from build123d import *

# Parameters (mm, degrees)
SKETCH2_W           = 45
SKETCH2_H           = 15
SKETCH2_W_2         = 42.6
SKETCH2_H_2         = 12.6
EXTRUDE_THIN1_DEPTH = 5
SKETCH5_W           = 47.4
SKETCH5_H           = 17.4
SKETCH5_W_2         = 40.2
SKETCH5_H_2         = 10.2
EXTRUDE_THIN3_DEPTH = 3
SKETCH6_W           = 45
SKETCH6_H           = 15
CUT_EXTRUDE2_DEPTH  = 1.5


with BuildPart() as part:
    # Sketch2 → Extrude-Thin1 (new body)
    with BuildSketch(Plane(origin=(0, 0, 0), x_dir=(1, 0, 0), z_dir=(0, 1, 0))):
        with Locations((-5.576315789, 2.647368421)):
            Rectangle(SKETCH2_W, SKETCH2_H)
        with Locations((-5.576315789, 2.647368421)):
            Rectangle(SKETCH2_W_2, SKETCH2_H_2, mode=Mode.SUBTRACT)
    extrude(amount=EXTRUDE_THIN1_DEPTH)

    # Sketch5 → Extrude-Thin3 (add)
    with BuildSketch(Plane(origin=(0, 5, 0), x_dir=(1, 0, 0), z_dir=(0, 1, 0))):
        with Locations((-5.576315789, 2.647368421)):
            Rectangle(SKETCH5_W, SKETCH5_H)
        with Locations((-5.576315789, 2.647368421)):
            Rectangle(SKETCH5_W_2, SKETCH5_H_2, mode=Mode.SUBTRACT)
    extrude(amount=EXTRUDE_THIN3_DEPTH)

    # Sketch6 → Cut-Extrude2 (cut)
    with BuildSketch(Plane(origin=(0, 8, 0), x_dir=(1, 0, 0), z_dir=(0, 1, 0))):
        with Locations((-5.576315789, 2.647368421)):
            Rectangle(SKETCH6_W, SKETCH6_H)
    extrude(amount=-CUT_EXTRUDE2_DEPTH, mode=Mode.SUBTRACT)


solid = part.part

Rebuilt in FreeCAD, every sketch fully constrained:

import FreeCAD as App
import Part
import Sketcher
Q = App.Units.Quantity

doc = App.newDocument("Part")
params = doc.addObject("Spreadsheet::Sheet", "Params")
for row, (alias, value) in enumerate([
    ("sketch1_width", "45 mm"),
    ("sketch1_height", "15 mm"),
    ("sketch1_width2", "42.6 mm"),
    ("sketch1_height2", "12.6 mm"),
    ("pad1_length", "5 mm"),
    ("sketch2_width", "47.4 mm"),
    ("sketch2_width2", "40.2 mm"),
    ("sketch2_height", "17.4 mm"),
    ("sketch2_height2", "10.2 mm"),
    ("pad2_length", "3 mm"),
    ("sketch3_width", "45 mm"),
    ("sketch3_height", "15 mm"),
    ("pocket1_length", "1.5 mm"),
], start=1):
    params.set(f"A{row}", alias)
    params.set(f"B{row}", "=" + value)
    params.setAlias(f"B{row}", alias)

body = doc.addObject("PartDesign::Body", "Body")

sketch1 = body.newObject("Sketcher::SketchObject", "Sketch")
sketch1.AttachmentSupport = (doc.getObject("XZ_Plane"), [""])
sketch1.MapMode = "FlatFace"
sketch1.addGeometry(Part.LineSegment(App.Vector(-28, -10, 0), App.Vector(-28, 5, 0)), False)
sketch1.addGeometry(Part.LineSegment(App.Vector(-28, 5, 0), App.Vector(17, 5, 0)), False)
sketch1.addGeometry(Part.LineSegment(App.Vector(17, 5, 0), App.Vector(17, -10, 0)), False)
sketch1.addGeometry(Part.LineSegment(App.Vector(17, -10, 0), App.Vector(-28, -10, 0)), False)
sketch1.addGeometry(Part.LineSegment(App.Vector(16, 4, 0), App.Vector(-27, 4, 0)), False)
sketch1.addGeometry(Part.LineSegment(App.Vector(-27, 4, 0), App.Vector(-27, -9, 0)), False)
sketch1.addGeometry(Part.LineSegment(App.Vector(-27, -9, 0), App.Vector(16, -9, 0)), False)
sketch1.addGeometry(Part.LineSegment(App.Vector(16, -9, 0), App.Vector(16, 4, 0)), False)
sketch1.addConstraint(Sketcher.Constraint("Coincident", 0, 2, 1, 1))
sketch1.addConstraint(Sketcher.Constraint("Coincident", 1, 2, 2, 1))
sketch1.addConstraint(Sketcher.Constraint("Coincident", 2, 2, 3, 1))
sketch1.addConstraint(Sketcher.Constraint("Coincident", 3, 2, 0, 1))
sketch1.addConstraint(Sketcher.Constraint("Coincident", 4, 2, 5, 1))
sketch1.addConstraint(Sketcher.Constraint("Coincident", 5, 2, 6, 1))
sketch1.addConstraint(Sketcher.Constraint("Coincident", 6, 2, 7, 1))
sketch1.addConstraint(Sketcher.Constraint("Coincident", 7, 2, 4, 1))
sketch1.addConstraint(Sketcher.Constraint("Vertical", 0))
sketch1.addConstraint(Sketcher.Constraint("Horizontal", 1))
sketch1.addConstraint(Sketcher.Constraint("Vertical", 2))
sketch1.addConstraint(Sketcher.Constraint("Horizontal", 3))
sketch1.addConstraint(Sketcher.Constraint("Horizontal", 4))
sketch1.addConstraint(Sketcher.Constraint("Vertical", 5))
sketch1.addConstraint(Sketcher.Constraint("Horizontal", 6))
sketch1.addConstraint(Sketcher.Constraint("Vertical", 7))
sketch1.addConstraint(Sketcher.Constraint("DistanceX", 1, 1, 1, 2, Q("45 mm")))
sketch1.addConstraint(Sketcher.Constraint("DistanceY", 0, 1, 0, 2, Q("15 mm")))
sketch1.addConstraint(Sketcher.Constraint("DistanceX", 4, 2, 4, 1, Q("42.6 mm")))
sketch1.addConstraint(Sketcher.Constraint("DistanceY", 5, 2, 5, 1, Q("12.6 mm")))
sketch1.addConstraint(Sketcher.Constraint("DistanceX", 0, 2, 4, 2, Q("1.2 mm")))
sketch1.addConstraint(Sketcher.Constraint("DistanceY", 4, 2, 0, 2, Q("1.2 mm")))
sketch1.addConstraint(Sketcher.Constraint("DistanceY", -1, 1, 0, 2, Q("4.852632 mm")))
sketch1.addConstraint(Sketcher.Constraint("DistanceX", 0, 2, -1, 1, Q("28.076316 mm")))
sketch1.setExpression("Constraints[16]", "Params.sketch1_width")
sketch1.setExpression("Constraints[17]", "Params.sketch1_height")
sketch1.setExpression("Constraints[18]", "Params.sketch1_width2")
sketch1.setExpression("Constraints[19]", "Params.sketch1_height2")
pad1 = body.newObject("PartDesign::Pad", "Pad")
pad1.Profile = sketch1
pad1.setExpression("Length", "Params.pad1_length")
pad1.Reversed = True

sketch2 = body.newObject("Sketcher::SketchObject", "Sketch001")
sketch2.AttachmentSupport = (doc.getObject("XZ_Plane"), [""])
sketch2.MapMode = "FlatFace"
sketch2.AttachmentOffset = App.Placement(App.Vector(0, 0, -5), App.Rotation())
sketch2.addGeometry(Part.LineSegment(App.Vector(-29, -11, 0), App.Vector(-29, 6, 0)), False)
sketch2.addGeometry(Part.LineSegment(App.Vector(-29, 6, 0), App.Vector(18, 6, 0)), False)
sketch2.addGeometry(Part.LineSegment(App.Vector(18, 6, 0), App.Vector(18, -11, 0)), False)
sketch2.addGeometry(Part.LineSegment(App.Vector(18, -11, 0), App.Vector(-29, -11, 0)), False)
sketch2.addGeometry(Part.LineSegment(App.Vector(15, 2, 0), App.Vector(-26, 2, 0)), False)
sketch2.addGeometry(Part.LineSegment(App.Vector(-26, 2, 0), App.Vector(-26, -8, 0)), False)
sketch2.addGeometry(Part.LineSegment(App.Vector(-26, -8, 0), App.Vector(15, -8, 0)), False)
sketch2.addGeometry(Part.LineSegment(App.Vector(15, -8, 0), App.Vector(15, 2, 0)), False)
sketch2.addConstraint(Sketcher.Constraint("Coincident", 0, 2, 1, 1))
sketch2.addConstraint(Sketcher.Constraint("Coincident", 1, 2, 2, 1))
sketch2.addConstraint(Sketcher.Constraint("Coincident", 2, 2, 3, 1))
sketch2.addConstraint(Sketcher.Constraint("Coincident", 3, 2, 0, 1))
sketch2.addConstraint(Sketcher.Constraint("Coincident", 4, 2, 5, 1))
sketch2.addConstraint(Sketcher.Constraint("Coincident", 5, 2, 6, 1))
sketch2.addConstraint(Sketcher.Constraint("Coincident", 6, 2, 7, 1))
sketch2.addConstraint(Sketcher.Constraint("Coincident", 7, 2, 4, 1))
sketch2.addConstraint(Sketcher.Constraint("Vertical", 0))
sketch2.addConstraint(Sketcher.Constraint("Horizontal", 1))
sketch2.addConstraint(Sketcher.Constraint("Vertical", 2))
sketch2.addConstraint(Sketcher.Constraint("Horizontal", 3))
sketch2.addConstraint(Sketcher.Constraint("Horizontal", 4))
sketch2.addConstraint(Sketcher.Constraint("Vertical", 5))
sketch2.addConstraint(Sketcher.Constraint("Horizontal", 6))
sketch2.addConstraint(Sketcher.Constraint("Vertical", 7))
sketch2.addConstraint(Sketcher.Constraint("DistanceX", 1, 1, 1, 2, Q("47.4 mm")))
sketch2.addConstraint(Sketcher.Constraint("DistanceX", 4, 2, 4, 1, Q("40.2 mm")))
sketch2.addConstraint(Sketcher.Constraint("DistanceY", 0, 1, 0, 2, Q("17.4 mm")))
sketch2.addConstraint(Sketcher.Constraint("DistanceY", 5, 2, 5, 1, Q("10.2 mm")))
sketch2.addConstraint(Sketcher.Constraint("DistanceX", 0, 2, 4, 2, Q("3.6 mm")))
sketch2.addConstraint(Sketcher.Constraint("DistanceY", 4, 2, 0, 2, Q("3.6 mm")))
sketch2.addConstraint(Sketcher.Constraint("DistanceY", -1, 1, 0, 2, Q("6.052632 mm")))
sketch2.addConstraint(Sketcher.Constraint("DistanceX", 0, 2, -1, 1, Q("29.276316 mm")))
sketch2.setExpression("Constraints[16]", "Params.sketch2_width")
sketch2.setExpression("Constraints[17]", "Params.sketch2_width2")
sketch2.setExpression("Constraints[18]", "Params.sketch2_height")
sketch2.setExpression("Constraints[19]", "Params.sketch2_height2")
pad2 = body.newObject("PartDesign::Pad", "Pad001")
pad2.Profile = sketch2
pad2.setExpression("Length", "Params.pad2_length")
pad2.Reversed = True

sketch3 = body.newObject("Sketcher::SketchObject", "Sketch002")
sketch3.AttachmentSupport = (doc.getObject("XZ_Plane"), [""])
sketch3.MapMode = "FlatFace"
sketch3.AttachmentOffset = App.Placement(App.Vector(0, 0, -8), App.Rotation())
sketch3.addGeometry(Part.LineSegment(App.Vector(-28, -10, 0), App.Vector(-28, 5, 0)), False)
sketch3.addGeometry(Part.LineSegment(App.Vector(-28, 5, 0), App.Vector(17, 5, 0)), False)
sketch3.addGeometry(Part.LineSegment(App.Vector(17, 5, 0), App.Vector(17, -10, 0)), False)
sketch3.addGeometry(Part.LineSegment(App.Vector(17, -10, 0), App.Vector(-28, -10, 0)), False)
sketch3.addConstraint(Sketcher.Constraint("Coincident", 0, 2, 1, 1))
sketch3.addConstraint(Sketcher.Constraint("Coincident", 1, 2, 2, 1))
sketch3.addConstraint(Sketcher.Constraint("Coincident", 2, 2, 3, 1))
sketch3.addConstraint(Sketcher.Constraint("Coincident", 3, 2, 0, 1))
sketch3.addConstraint(Sketcher.Constraint("Vertical", 0))
sketch3.addConstraint(Sketcher.Constraint("Horizontal", 1))
sketch3.addConstraint(Sketcher.Constraint("Vertical", 2))
sketch3.addConstraint(Sketcher.Constraint("Horizontal", 3))
sketch3.addConstraint(Sketcher.Constraint("DistanceX", 1, 1, 1, 2, Q("45 mm")))
sketch3.addConstraint(Sketcher.Constraint("DistanceY", 0, 1, 0, 2, Q("15 mm")))
sketch3.addConstraint(Sketcher.Constraint("DistanceY", -1, 1, 0, 2, Q("4.852632 mm")))
sketch3.addConstraint(Sketcher.Constraint("DistanceX", 0, 2, -1, 1, Q("28.076316 mm")))
sketch3.setExpression("Constraints[8]", "Params.sketch3_width")
sketch3.setExpression("Constraints[9]", "Params.sketch3_height")
pocket1 = body.newObject("PartDesign::Pocket", "Pocket")
pocket1.Profile = sketch3
pocket1.setExpression("Length", "Params.pocket1_length")
pocket1.Reversed = True

doc.recompute()
